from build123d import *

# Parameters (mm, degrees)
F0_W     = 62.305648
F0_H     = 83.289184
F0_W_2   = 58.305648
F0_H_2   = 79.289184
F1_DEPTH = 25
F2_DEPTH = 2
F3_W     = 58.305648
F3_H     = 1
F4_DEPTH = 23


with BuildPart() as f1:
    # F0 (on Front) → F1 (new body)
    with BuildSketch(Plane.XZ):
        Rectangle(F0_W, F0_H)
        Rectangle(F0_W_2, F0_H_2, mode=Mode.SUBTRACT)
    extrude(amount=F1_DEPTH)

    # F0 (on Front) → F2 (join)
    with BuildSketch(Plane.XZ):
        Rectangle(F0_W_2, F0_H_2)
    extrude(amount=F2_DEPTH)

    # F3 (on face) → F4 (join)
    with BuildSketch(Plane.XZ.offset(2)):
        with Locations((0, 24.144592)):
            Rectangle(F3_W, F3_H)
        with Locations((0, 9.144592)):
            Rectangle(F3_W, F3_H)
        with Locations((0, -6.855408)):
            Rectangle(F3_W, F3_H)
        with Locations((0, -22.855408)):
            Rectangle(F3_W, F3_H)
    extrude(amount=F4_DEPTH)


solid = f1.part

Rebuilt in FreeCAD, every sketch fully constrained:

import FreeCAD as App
import Part
import Sketcher

V = App.Vector

doc = App.newDocument("Part")
body = doc.addObject("PartDesign::Body", "Body")

# Sketch on XZ plane
sketch1 = doc.addObject("Sketcher::SketchObject", "Sketch")
body.addObject(sketch1)
sketch1.AttachmentSupport = (doc.XZ_Plane, [""])
sketch1.MapMode = "FlatFace"
sketch1.addGeometry(Part.LineSegment(V(-31, 42, 0), V(-31, -42, 0)), False)
sketch1.addGeometry(Part.LineSegment(V(-31, -42, 0), V(31, -42, 0)), False)
sketch1.addGeometry(Part.LineSegment(V(31, -42, 0), V(31, 42, 0)), False)
sketch1.addGeometry(Part.LineSegment(V(31, 42, 0), V(-31, 42, 0)), False)
sketch1.addGeometry(Part.LineSegment(V(29, -40, 0), V(-29, -40, 0)), False)
sketch1.addGeometry(Part.LineSegment(V(-29, -40, 0), V(-29, 40, 0)), False)
sketch1.addGeometry(Part.LineSegment(V(-29, 40, 0), V(29, 40, 0)), False)
sketch1.addGeometry(Part.LineSegment(V(29, 40, 0), V(29, -40, 0)), False)
sketch1.addConstraint(Sketcher.Constraint("Coincident", 0, 2, 1, 1))
sketch1.addConstraint(Sketcher.Constraint("Coincident", 1, 2, 2, 1))
sketch1.addConstraint(Sketcher.Constraint("Coincident", 2, 2, 3, 1))
sketch1.addConstraint(Sketcher.Constraint("Coincident", 3, 2, 0, 1))
sketch1.addConstraint(Sketcher.Constraint("Coincident", 4, 2, 5, 1))
sketch1.addConstraint(Sketcher.Constraint("Coincident", 5, 2, 6, 1))
sketch1.addConstraint(Sketcher.Constraint("Coincident", 6, 2, 7, 1))
sketch1.addConstraint(Sketcher.Constraint("Coincident", 7, 2, 4, 1))
sketch1.addConstraint(Sketcher.Constraint("Vertical", 0))
sketch1.addConstraint(Sketcher.Constraint("Horizontal", 1))
sketch1.addConstraint(Sketcher.Constraint("Vertical", 2))
sketch1.addConstraint(Sketcher.Constraint("Horizontal", 3))
sketch1.addConstraint(Sketcher.Constraint("Horizontal", 4))
sketch1.addConstraint(Sketcher.Constraint("Vertical", 5))
sketch1.addConstraint(Sketcher.Constraint("Horizontal", 6))
sketch1.addConstraint(Sketcher.Constraint("Vertical", 7))
sketch1.addConstraint(Sketcher.Constraint("Symmetric", 0, 2, 2, 2, -1, 1))
sketch1.addConstraint(Sketcher.Constraint("Symmetric", 4, 2, 6, 2, -1, 1))
sketch1.addConstraint(Sketcher.Constraint("DistanceX", 0, 2, 4, 2, 2.0))
sketch1.addConstraint(Sketcher.Constraint("DistanceY", 0, 2, 4, 2, 2.0))
sketch1.addConstraint(Sketcher.Constraint("DistanceX", 1, 1, 1, 2, 62.305648))
sketch1.addConstraint(Sketcher.Constraint("DistanceY", 0, 2, 0, 1, 83.289184))
pad1 = doc.addObject("PartDesign::Pad", "Pad")
body.addObject(pad1)
pad1.Profile = sketch1
pad1.Length = 25

# Sketch on XZ plane
sketch2 = doc.addObject("Sketcher::SketchObject", "Sketch001")
body.addObject(sketch2)
sketch2.AttachmentSupport = (doc.XZ_Plane, [""])
sketch2.MapMode = "FlatFace"
sketch2.addGeometry(Part.LineSegment(V(-29, 40, 0), V(-29, -40, 0)), False)
sketch2.addGeometry(Part.LineSegment(V(-29, -40, 0), V(29, -40, 0)), False)
sketch2.addGeometry(Part.LineSegment(V(29, -40, 0), V(29, 40, 0)), False)
sketch2.addGeometry(Part.LineSegment(V(29, 40, 0), V(-29, 40, 0)), False)
sketch2.addConstraint(Sketcher.Constraint("Coincident", 0, 2, 1, 1))
sketch2.addConstraint(Sketcher.Constraint("Coincident", 1, 2, 2, 1))
sketch2.addConstraint(Sketcher.Constraint("Coincident", 2, 2, 3, 1))
sketch2.addConstraint(Sketcher.Constraint("Coincident", 3, 2, 0, 1))
sketch2.addConstraint(Sketcher.Constraint("Vertical", 0))
sketch2.addConstraint(Sketcher.Constraint("Horizontal", 1))
sketch2.addConstraint(Sketcher.Constraint("Vertical", 2))
sketch2.addConstraint(Sketcher.Constraint("Horizontal", 3))
sketch2.addConstraint(Sketcher.Constraint("Symmetric", 0, 2, 2, 2, -1, 1))
sketch2.addConstraint(Sketcher.Constraint("DistanceX", 1, 1, 1, 2, 58.305648))
sketch2.addConstraint(Sketcher.Constraint("DistanceY", 0, 2, 0, 1, 79.289184))
pad2 = doc.addObject("PartDesign::Pad", "Pad001")
body.addObject(pad2)
pad2.Profile = sketch2
pad2.Length = 2

# Sketch on XZ plane
sketch3 = doc.addObject("Sketcher::SketchObject", "Sketch002")
body.addObject(sketch3)
sketch3.AttachmentSupport = (doc.XZ_Plane, [""])
sketch3.MapMode = "FlatFace"
sketch3.AttachmentOffset = App.Placement(V(0, 0, 2), App.Rotation())
sketch3.addGeometry(Part.LineSegment(V(-29.2, 24.6, 0), V(-29.2, 23.6, 0)), False)
sketch3.addGeometry(Part.LineSegment(V(-29.2, 23.6, 0), V(29.2, 23.6, 0)), False)
sketch3.addGeometry(Part.LineSegment(V(29.2, 23.6, 0), V(29.2, 24.6, 0)), False)
sketch3.addGeometry(Part.LineSegment(V(29.2, 24.6, 0), V(-29.2, 24.6, 0)), False)
sketch3.addGeometry(Part.LineSegment(V(-29.2, 9.6, 0), V(-29.2, 8.6, 0)), False)
sketch3.addGeometry(Part.LineSegment(V(-29.2, 8.6, 0), V(29.2, 8.6, 0)), False)
sketch3.addGeometry(Part.LineSegment(V(29.2, 8.6, 0), V(29.2, 9.6, 0)), False)
sketch3.addGeometry(Part.LineSegment(V(29.2, 9.6, 0), V(-29.2, 9.6, 0)), False)
sketch3.addGeometry(Part.LineSegment(V(-29.2, -6.4, 0), V(-29.2, -7.4, 0)), False)
sketch3.addGeometry(Part.LineSegment(V(-29.2, -7.4, 0), V(29.2, -7.4, 0)), False)
sketch3.addGeometry(Part.LineSegment(V(29.2, -7.4, 0), V(29.2, -6.4, 0)), False)
sketch3.addGeometry(Part.LineSegment(V(29.2, -6.4, 0), V(-29.2, -6.4, 0)), False)
sketch3.addGeometry(Part.LineSegment(V(-29.2, -22.4, 0), V(-29.2, -23.4, 0)), False)
sketch3.addGeometry(Part.LineSegment(V(-29.2, -23.4, 0), V(29.2, -23.4, 0)), False)
sketch3.addGeometry(Part.LineSegment(V(29.2, -23.4, 0), V(29.2, -22.4, 0)), False)
sketch3.addGeometry(Part.LineSegment(V(29.2, -22.4, 0), V(-29.2, -22.4, 0)), False)
sketch3.addConstraint(Sketcher.Constraint("Coincident", 0, 2, 1, 1))
sketch3.addConstraint(Sketcher.Constraint("Coincident", 1, 2, 2, 1))
sketch3.addConstraint(Sketcher.Constraint("Coincident", 2, 2, 3, 1))
sketch3.addConstraint(Sketcher.Constraint("Coincident", 3, 2, 0, 1))
sketch3.addConstraint(Sketcher.Constraint("Coincident", 4, 2, 5, 1))
sketch3.addConstraint(Sketcher.Constraint("Coincident", 5, 2, 6, 1))
sketch3.addConstraint(Sketcher.Constraint("Coincident", 6, 2, 7, 1))
sketch3.addConstraint(Sketcher.Constraint("Coincident", 7, 2, 4, 1))
sketch3.addConstraint(Sketcher.Constraint("Coincident", 8, 2, 9, 1))
sketch3.addConstraint(Sketcher.Constraint("Coincident", 9, 2, 10, 1))
sketch3.addConstraint(Sketcher.Constraint("Coincident", 10, 2, 11, 1))
sketch3.addConstraint(Sketcher.Constraint("Coincident", 11, 2, 8, 1))
sketch3.addConstraint(Sketcher.Constraint("Coincident", 12, 2, 13, 1))
sketch3.addConstraint(Sketcher.Constraint("Coincident", 13, 2, 14, 1))
sketch3.addConstraint(Sketcher.Constraint("Coincident", 14, 2, 15, 1))
sketch3.addConstraint(Sketcher.Constraint("Coincident", 15, 2, 12, 1))
sketch3.addConstraint(Sketcher.Constraint("Vertical", 0))
sketch3.addConstraint(Sketcher.Constraint("Horizontal", 1))
sketch3.addConstraint(Sketcher.Constraint("Vertical", 2))
sketch3.addConstraint(Sketcher.Constraint("Horizontal", 3))
sketch3.addConstraint(Sketcher.Constraint("Vertical", 4))
sketch3.addConstraint(Sketcher.Constraint("Horizontal", 5))
sketch3.addConstraint(Sketcher.Constraint("Vertical", 6))
sketch3.addConstraint(Sketcher.Constraint("Horizontal", 7))
sketch3.addConstraint(Sketcher.Constraint("Vertical", 8))
sketch3.addConstraint(Sketcher.Constraint("Horizontal", 9))
sketch3.addConstraint(Sketcher.Constraint("Vertical", 10))
sketch3.addConstraint(Sketcher.Constraint("Horizontal", 11))
sketch3.addConstraint(Sketcher.Constraint("Vertical", 12))
sketch3.addConstraint(Sketcher.Constraint("Horizontal", 13))
sketch3.addConstraint(Sketcher.Constraint("Vertical", 14))
sketch3.addConstraint(Sketcher.Constraint("Horizontal", 15))
sketch3.addConstraint(Sketcher.Constraint("Vertical", 3, 2, 4, 2))
sketch3.addConstraint(Sketcher.Constraint("Vertical", 2, 2, 5, 2))
sketch3.addConstraint(Sketcher.Constraint("Vertical", 7, 2, 8, 2))
sketch3.addConstraint(Sketcher.Constraint("Vertical", 6, 2, 9, 2))
sketch3.addConstraint(Sketcher.Constraint("Vertical", 11, 2, 12, 2))
sketch3.addConstraint(Sketcher.Constraint("Vertical", 10, 2, 13, 2))
sketch3.addConstraint(Sketcher.Constraint("Equal", 2, 4))
sketch3.addConstraint(Sketcher.Constraint("Equal", 6, 8))
sketch3.addConstraint(Sketcher.Constraint("Equal", 10, 12))
sketch3.addConstraint(Sketcher.Constraint("DistanceY", 0, 2, 0, 1, 1.0))
sketch3.addConstraint(Sketcher.Constraint("DistanceY", 4, 2, 0, 2, 15.0))
sketch3.addConstraint(Sketcher.Constraint("DistanceY", 8, 2, 4, 2, 16.0))
sketch3.addConstraint(Sketcher.Constraint("DistanceY", 12, 2, 8, 2, 16.0))
sketch3.addConstraint(Sketcher.Constraint("DistanceX", 1, 1, 1, 2, 58.305648))
sketch3.addConstraint(Sketcher.Constraint("DistanceY", -1, 1, 0, 2, 23.644592))
sketch3.addConstraint(Sketcher.Constraint("DistanceX", 0, 2, -1, 1, 29.152824))
pad3 = doc.addObject("PartDesign::Pad", "Pad002")
body.addObject(pad3)
pad3.Profile = sketch3
pad3.Length = 23

doc.recompute()
